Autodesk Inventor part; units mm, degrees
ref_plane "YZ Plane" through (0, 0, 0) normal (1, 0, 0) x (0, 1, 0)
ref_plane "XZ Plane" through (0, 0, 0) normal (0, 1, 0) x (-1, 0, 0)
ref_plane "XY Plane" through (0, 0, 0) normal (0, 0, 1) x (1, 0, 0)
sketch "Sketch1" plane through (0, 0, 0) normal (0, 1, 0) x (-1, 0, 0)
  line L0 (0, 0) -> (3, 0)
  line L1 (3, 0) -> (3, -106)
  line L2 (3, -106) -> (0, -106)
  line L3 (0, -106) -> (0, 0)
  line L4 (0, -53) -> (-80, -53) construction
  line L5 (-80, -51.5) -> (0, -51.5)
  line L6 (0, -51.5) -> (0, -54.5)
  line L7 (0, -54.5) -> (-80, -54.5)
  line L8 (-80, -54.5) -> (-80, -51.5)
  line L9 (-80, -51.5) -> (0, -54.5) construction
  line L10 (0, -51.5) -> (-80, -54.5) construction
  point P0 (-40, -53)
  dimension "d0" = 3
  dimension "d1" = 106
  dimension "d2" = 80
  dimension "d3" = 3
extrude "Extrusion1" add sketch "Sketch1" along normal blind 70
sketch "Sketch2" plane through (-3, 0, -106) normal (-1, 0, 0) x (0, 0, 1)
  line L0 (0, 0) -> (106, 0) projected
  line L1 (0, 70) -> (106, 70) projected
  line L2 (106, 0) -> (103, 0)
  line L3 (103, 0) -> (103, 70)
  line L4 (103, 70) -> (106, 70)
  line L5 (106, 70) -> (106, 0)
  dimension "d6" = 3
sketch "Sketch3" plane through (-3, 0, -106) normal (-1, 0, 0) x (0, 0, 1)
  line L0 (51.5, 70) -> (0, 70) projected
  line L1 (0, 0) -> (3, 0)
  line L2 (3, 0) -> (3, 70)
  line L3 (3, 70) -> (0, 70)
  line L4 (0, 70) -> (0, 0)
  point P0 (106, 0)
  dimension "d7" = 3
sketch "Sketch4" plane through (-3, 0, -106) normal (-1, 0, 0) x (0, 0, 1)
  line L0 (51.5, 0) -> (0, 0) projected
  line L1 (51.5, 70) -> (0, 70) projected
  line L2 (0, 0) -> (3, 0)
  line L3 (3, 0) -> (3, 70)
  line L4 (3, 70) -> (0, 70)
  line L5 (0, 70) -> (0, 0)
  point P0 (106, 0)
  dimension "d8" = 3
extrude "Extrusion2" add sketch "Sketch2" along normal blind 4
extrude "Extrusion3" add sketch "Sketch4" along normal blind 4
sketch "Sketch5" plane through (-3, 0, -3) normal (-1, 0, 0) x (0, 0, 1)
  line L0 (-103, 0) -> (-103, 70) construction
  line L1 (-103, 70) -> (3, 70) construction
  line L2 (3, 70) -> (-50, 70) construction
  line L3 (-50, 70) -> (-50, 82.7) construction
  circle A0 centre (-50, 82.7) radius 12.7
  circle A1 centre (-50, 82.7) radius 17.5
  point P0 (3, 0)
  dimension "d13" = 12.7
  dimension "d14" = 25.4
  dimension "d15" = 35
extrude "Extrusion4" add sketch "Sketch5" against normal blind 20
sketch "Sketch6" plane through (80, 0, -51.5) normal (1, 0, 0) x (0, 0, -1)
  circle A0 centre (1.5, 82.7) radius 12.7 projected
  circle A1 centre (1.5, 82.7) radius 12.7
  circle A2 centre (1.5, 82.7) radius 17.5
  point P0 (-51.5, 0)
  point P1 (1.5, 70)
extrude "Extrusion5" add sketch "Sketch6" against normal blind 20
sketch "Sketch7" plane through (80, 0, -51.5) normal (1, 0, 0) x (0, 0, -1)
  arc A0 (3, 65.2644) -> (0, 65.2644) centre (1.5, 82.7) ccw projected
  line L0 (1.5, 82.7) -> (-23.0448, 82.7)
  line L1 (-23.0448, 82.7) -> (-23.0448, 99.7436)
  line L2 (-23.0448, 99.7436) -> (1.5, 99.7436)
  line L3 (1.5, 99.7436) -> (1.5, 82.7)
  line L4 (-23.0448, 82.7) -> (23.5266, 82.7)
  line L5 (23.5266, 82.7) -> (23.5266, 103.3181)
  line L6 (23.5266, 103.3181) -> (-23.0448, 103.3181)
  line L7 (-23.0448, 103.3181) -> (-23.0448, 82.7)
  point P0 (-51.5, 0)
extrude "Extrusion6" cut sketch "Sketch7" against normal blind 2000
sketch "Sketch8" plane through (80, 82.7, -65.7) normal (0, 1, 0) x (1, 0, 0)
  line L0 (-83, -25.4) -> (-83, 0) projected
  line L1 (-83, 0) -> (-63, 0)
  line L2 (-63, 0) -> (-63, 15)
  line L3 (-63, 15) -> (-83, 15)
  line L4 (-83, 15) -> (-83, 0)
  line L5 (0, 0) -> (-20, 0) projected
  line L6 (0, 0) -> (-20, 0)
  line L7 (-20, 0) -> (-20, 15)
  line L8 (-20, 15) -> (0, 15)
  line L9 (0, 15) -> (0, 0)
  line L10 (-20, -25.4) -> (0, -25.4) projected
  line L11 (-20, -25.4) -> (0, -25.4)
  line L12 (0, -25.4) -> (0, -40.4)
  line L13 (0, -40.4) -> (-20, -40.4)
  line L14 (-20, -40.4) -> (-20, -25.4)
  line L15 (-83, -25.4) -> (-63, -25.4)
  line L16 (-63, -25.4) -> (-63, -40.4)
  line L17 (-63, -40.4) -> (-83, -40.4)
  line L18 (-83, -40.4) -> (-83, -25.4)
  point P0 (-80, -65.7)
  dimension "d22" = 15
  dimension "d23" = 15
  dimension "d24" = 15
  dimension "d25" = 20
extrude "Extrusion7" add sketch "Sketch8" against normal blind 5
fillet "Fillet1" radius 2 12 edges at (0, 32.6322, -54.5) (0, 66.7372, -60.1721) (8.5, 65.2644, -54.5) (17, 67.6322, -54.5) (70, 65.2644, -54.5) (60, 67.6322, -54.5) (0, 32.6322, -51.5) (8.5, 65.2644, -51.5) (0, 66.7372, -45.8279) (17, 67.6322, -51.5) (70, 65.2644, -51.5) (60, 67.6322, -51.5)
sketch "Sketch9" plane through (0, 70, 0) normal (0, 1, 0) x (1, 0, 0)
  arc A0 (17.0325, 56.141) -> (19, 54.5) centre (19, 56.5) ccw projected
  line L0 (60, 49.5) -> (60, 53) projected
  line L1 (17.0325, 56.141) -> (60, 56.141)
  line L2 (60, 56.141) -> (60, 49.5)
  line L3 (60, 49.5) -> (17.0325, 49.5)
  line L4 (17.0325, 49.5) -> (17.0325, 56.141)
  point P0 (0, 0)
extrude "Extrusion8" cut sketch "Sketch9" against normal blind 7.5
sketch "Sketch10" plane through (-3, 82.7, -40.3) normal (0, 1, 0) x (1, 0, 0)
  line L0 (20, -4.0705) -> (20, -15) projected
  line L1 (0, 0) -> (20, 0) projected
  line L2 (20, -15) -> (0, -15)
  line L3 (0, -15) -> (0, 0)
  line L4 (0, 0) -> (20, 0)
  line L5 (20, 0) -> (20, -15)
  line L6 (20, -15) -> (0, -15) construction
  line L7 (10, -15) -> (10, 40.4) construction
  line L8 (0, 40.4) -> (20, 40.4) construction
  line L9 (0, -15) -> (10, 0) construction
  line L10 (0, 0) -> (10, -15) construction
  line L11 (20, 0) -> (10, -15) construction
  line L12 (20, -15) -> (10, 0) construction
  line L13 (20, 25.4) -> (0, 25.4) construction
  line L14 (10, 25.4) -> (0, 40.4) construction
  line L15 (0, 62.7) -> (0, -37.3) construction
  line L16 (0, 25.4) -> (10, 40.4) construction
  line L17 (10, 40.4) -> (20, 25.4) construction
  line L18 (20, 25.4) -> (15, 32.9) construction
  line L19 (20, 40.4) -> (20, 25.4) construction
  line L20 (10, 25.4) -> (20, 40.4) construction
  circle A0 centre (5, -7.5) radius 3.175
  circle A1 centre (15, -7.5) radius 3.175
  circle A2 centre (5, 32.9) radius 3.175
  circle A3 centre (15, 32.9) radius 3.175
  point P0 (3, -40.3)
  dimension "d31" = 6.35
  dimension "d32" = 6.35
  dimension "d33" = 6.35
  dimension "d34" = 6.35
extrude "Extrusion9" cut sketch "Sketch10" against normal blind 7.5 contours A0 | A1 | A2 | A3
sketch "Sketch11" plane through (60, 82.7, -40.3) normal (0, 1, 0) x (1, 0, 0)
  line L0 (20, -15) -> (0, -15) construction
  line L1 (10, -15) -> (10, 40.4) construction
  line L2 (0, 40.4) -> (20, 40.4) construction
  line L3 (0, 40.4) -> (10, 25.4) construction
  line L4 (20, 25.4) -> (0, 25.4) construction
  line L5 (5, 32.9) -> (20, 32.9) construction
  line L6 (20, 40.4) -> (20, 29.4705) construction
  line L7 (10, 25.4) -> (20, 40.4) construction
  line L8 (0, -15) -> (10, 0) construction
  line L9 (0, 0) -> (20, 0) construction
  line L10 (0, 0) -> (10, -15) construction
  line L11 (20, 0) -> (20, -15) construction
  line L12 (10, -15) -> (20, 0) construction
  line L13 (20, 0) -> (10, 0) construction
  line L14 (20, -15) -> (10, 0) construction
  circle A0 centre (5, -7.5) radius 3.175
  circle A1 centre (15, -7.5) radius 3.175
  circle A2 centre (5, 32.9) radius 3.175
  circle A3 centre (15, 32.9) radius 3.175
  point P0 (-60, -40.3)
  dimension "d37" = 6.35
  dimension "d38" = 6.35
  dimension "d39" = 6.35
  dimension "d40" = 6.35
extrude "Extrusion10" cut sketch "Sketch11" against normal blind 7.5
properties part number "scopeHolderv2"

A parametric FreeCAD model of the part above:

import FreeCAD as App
import Part
import Sketcher
Q = App.Units.Quantity


def edges_at(feature, points):
    """Names of the edges that pass closest to the given points."""
    edges = feature.Shape.Edges
    near = lambda p: min(range(len(edges)), key=lambda i: edges[i].distToShape(Part.Vertex(*p))[0])
    return sorted({f"Edge{near(p) + 1}" for p in points})


def add_polygon(sketch, points):
    """Adds a closed chain of lines whose ends are joined by coincident constraints."""
    first, n = sketch.GeometryCount, len(points)
    for a, b in zip(points, points[1:] + points[:1]):
        sketch.addGeometry(Part.LineSegment(App.Vector(*a, 0), App.Vector(*b, 0)), False)
    for i in range(n):
        sketch.addConstraint(Sketcher.Constraint("Coincident", first + i, 2, first + (i + 1) % n, 1))

doc = App.newDocument("Part")
body = doc.addObject("PartDesign::Body", "Body")

# Sketch on XZ plane
sketch1 = body.newObject("Sketcher::SketchObject", "Sketch")
sketch1.AttachmentSupport = (doc.getObject("XZ_Plane"), [""])
sketch1.MapMode = "FlatFace"
add_polygon(sketch1, [(-3, 0), (0, 0), (0, -51.5), (80, -51.5), (80, -54.5), (0, -54.5), (0, -106), (-3, -106)])  # lines 0-7
sketch1.addConstraint([
    Sketcher.Constraint("Horizontal", 0),
    Sketcher.Constraint("Vertical", 1),
    Sketcher.Constraint("Horizontal", 2),
    Sketcher.Constraint("Vertical", 3),
    Sketcher.Constraint("Horizontal", 4),
    Sketcher.Constraint("Vertical", 5),
    Sketcher.Constraint("Horizontal", 6),
    Sketcher.Constraint("Vertical", 7),
    Sketcher.Constraint("Coincident", 0, 2, -1, 1),
    Sketcher.Constraint("PointOnObject", 4, 2, -2),
    Sketcher.Constraint("Equal", 6, 3),
    Sketcher.Constraint("Equal", 1, 5),
    Sketcher.Constraint("DistanceX", 0, 1, 0, 2, Q("3 mm")),
    Sketcher.Constraint("DistanceX", 2, 1, 2, 2, Q("80 mm")),
    Sketcher.Constraint("DistanceY", 7, 1, 7, 2, Q("106 mm")),
])
pad1 = body.newObject("PartDesign::Pad", "Pad")
pad1.Profile = sketch1
pad1.Length = 70
pad1.Reversed = True

# Sketch on YZ plane
sketch2 = body.newObject("Sketcher::SketchObject", "Sketch001")
sketch2.AttachmentSupport = (doc.getObject("YZ_Plane"), [""])
sketch2.MapMode = "FlatFace"
sketch2.AttachmentOffset = App.Placement(App.Vector(0, 0, -3), App.Rotation())
add_polygon(sketch2, [(70, -3), (0, -3), (0, 0), (70, 0)])  # lines 0-3
sketch2.addConstraint([
    Sketcher.Constraint("Horizontal", 0),
    Sketcher.Constraint("Vertical", 1),
    Sketcher.Constraint("Horizontal", 2),
    Sketcher.Constraint("Vertical", 3),
    Sketcher.Constraint("Coincident", 1, 2, -1, 1),
    Sketcher.Constraint("DistanceY", 1, 1, 1, 2, Q("3 mm")),
    Sketcher.Constraint("DistanceX", 0, 2, 0, 1, Q("70 mm")),
])
pad2 = body.newObject("PartDesign::Pad", "Pad001")
pad2.Profile = sketch2
pad2.Length = 4
pad2.Reversed = True

# Sketch on YZ plane
sketch3 = body.newObject("Sketcher::SketchObject", "Sketch002")
sketch3.AttachmentSupport = (doc.getObject("YZ_Plane"), [""])
sketch3.MapMode = "FlatFace"
sketch3.AttachmentOffset = App.Placement(App.Vector(0, 0, -3), App.Rotation())
add_polygon(sketch3, [(0, -106), (0, -103), (70, -103), (70, -106)])  # lines 0-3
sketch3.addConstraint([
    Sketcher.Constraint("Vertical", 0),
    Sketcher.Constraint("Horizontal", 1),
    Sketcher.Constraint("Vertical", 2),
    Sketcher.Constraint("Horizontal", 3),
    Sketcher.Constraint("PointOnObject", 0, 2, -2),
    Sketcher.Constraint("DistanceY", 0, 1, 0, 2, Q("3 mm")),
    Sketcher.Constraint("DistanceX", 1, 1, 1, 2, Q("70 mm")),
    Sketcher.Constraint("DistanceY", 0, 2, -1, 1, Q("103 mm")),
])
pad3 = body.newObject("PartDesign::Pad", "Pad002")
pad3.Profile = sketch3
pad3.Length = 4
pad3.Reversed = True

# Sketch on YZ plane
sketch4 = body.newObject("Sketcher::SketchObject", "Sketch003")
sketch4.AttachmentSupport = (doc.getObject("YZ_Plane"), [""])
sketch4.MapMode = "FlatFace"
sketch4.AttachmentOffset = App.Placement(App.Vector(0, 0, -3), App.Rotation())
sketch4.addGeometry([
    Part.Circle(App.Vector(83, -53, 0), App.Vector(0, 0, 1), 18),
    Part.Circle(App.Vector(83, -53, 0), App.Vector(0, 0, 1), 13),
], False)
sketch4.addConstraint([
    Sketcher.Constraint("Coincident", 1, 3, 0, 3),
    Sketcher.Constraint("Diameter", 0, Q("35 mm")),
    Sketcher.Constraint("Diameter", 1, Q("25.4 mm")),
    Sketcher.Constraint("DistanceY", 0, 3, -1, 1, Q("53 mm")),
    Sketcher.Constraint("DistanceX", -1, 1, 0, 3, Q("82.7 mm")),
])
pad4 = body.newObject("PartDesign::Pad", "Pad003")
pad4.Profile = sketch4
pad4.Length = 20

# Sketch on YZ plane
sketch5 = body.newObject("Sketcher::SketchObject", "Sketch004")
sketch5.AttachmentSupport = (doc.getObject("YZ_Plane"), [""])
sketch5.MapMode = "FlatFace"
sketch5.AttachmentOffset = App.Placement(App.Vector(0, 0, 80), App.Rotation())
sketch5.addGeometry([
    Part.Circle(App.Vector(83, -53, 0), App.Vector(0, 0, 1), 18),
    Part.Circle(App.Vector(83, -53, 0), App.Vector(0, 0, 1), 13),
], False)
sketch5.addConstraint([
    Sketcher.Constraint("Coincident", 1, 3, 0, 3),
    Sketcher.Constraint("Diameter", 0, Q("35 mm")),
    Sketcher.Constraint("Diameter", 1, Q("25.4 mm")),
    Sketcher.Constraint("DistanceY", 0, 3, -1, 1, Q("53 mm")),
    Sketcher.Constraint("DistanceX", -1, 1, 0, 3, Q("82.7 mm")),
])
pad5 = body.newObject("PartDesign::Pad", "Pad004")
pad5.Profile = sketch5
pad5.Length = 20
pad5.Reversed = True

# Sketch on YZ plane
sketch6 = body.newObject("Sketcher::SketchObject", "Sketch005")
sketch6.AttachmentSupport = (doc.getObject("YZ_Plane"), [""])
sketch6.MapMode = "FlatFace"
sketch6.AttachmentOffset = App.Placement(App.Vector(0, 0, 80), App.Rotation())
add_polygon(sketch6, [(83, -75), (103, -75), (103, -28), (83, -28)])  # lines 0-3
sketch6.addConstraint([
    Sketcher.Constraint("Horizontal", 0),
    Sketcher.Constraint("Vertical", 1),
    Sketcher.Constraint("Horizontal", 2),
    Sketcher.Constraint("Vertical", 3),
    Sketcher.Constraint("DistanceX", -1, 1, 2, 2, Q("82.7 mm")),
    Sketcher.Constraint("DistanceX", 0, 1, 0, 2, Q("20.618 mm")),
    Sketcher.Constraint("DistanceY", 1, 1, 1, 2, Q("46.5714 mm")),
    Sketcher.Constraint("DistanceY", 0, 2, -1, 1, Q("75.0266 mm")),
])
pocket1 = body.newObject("PartDesign::Pocket", "Pocket")
pocket1.Profile = sketch6
pocket1.Length = 2000

# Sketch on XZ plane
sketch7 = body.newObject("Sketcher::SketchObject", "Sketch006")
sketch7.AttachmentSupport = (doc.getObject("XZ_Plane"), [""])
sketch7.MapMode = "FlatFace"
sketch7.AttachmentOffset = App.Placement(App.Vector(0, 0, -82.7), App.Rotation())
add_polygon(sketch7, [(-3, -81), (-3, -66), (17, -66), (17, -81)])  # lines 0-3
add_polygon(sketch7, [(17, -40), (-3, -40), (-3, -25), (17, -25)])  # lines 4-7
add_polygon(sketch7, [(60, -66), (80, -66), (80, -81), (60, -81)])  # lines 8-11
add_polygon(sketch7, [(80, -40), (60, -40), (60, -25), (80, -25)])  # lines 12-15
sketch7.addConstraint([
    Sketcher.Constraint("Vertical", 0),
    Sketcher.Constraint("Horizontal", 1),
    Sketcher.Constraint("Vertical", 2),
    Sketcher.Constraint("Horizontal", 3),
    Sketcher.Constraint("Horizontal", 4),
    Sketcher.Constraint("Vertical", 5),
    Sketcher.Constraint("Horizontal", 6),
    Sketcher.Constraint("Vertical", 7),
    Sketcher.Constraint("Horizontal", 8),
    Sketcher.Constraint("Vertical", 9),
    Sketcher.Constraint("Horizontal", 10),
    Sketcher.Constraint("Vertical", 11),
    Sketcher.Constraint("Horizontal", 12),
    Sketcher.Constraint("Vertical", 13),
    Sketcher.Constraint("Horizontal", 14),
    Sketcher.Constraint("Vertical", 15),
    Sketcher.Constraint("Horizontal", 1, 2, 8, 2),
    Sketcher.Constraint("Horizontal", 3, 2, 9, 2),
    Sketcher.Constraint("Horizontal", 7, 2, 12, 2),
    Sketcher.Constraint("Horizontal", 6, 2, 13, 2),
    Sketcher.Constraint("Vertical", 3, 2, 4, 2),
    Sketcher.Constraint("Vertical", 2, 2, 6, 2),
    Sketcher.Constraint("Vertical", 11, 2, 12, 2),
    Sketcher.Constraint("Vertical", 9, 2, 14, 2),
    Sketcher.Constraint("Equal", 6, 8),
    Sketcher.Constraint("Equal", 2, 5),
    Sketcher.Constraint("DistanceX", 1, 1, 1, 2, Q("20 mm")),
    Sketcher.Constraint("DistanceY", 0, 1, 0, 2, Q("15 mm")),
    Sketcher.Constraint("DistanceX", 0, 2, -1, 1, Q("3 mm")),
    Sketcher.Constraint("DistanceX", -1, 1, 8, 2, Q("80 mm")),
    Sketcher.Constraint("DistanceY", 0, 2, -1, 1, Q("65.7 mm")),
    Sketcher.Constraint("DistanceY", 4, 2, -1, 1, Q("40.3 mm")),
])
pad6 = body.newObject("PartDesign::Pad", "Pad005")
pad6.Profile = sketch7
pad6.Length = 5
doc.recompute()

fillet = body.newObject("PartDesign::Fillet", "Fillet")
fillet.Base = (pad6, edges_at(pad6, [
    (0, 32.632, -54.5),
    (0, 66.737, -60.172),
    (8.5, 65.264, -54.5),
    (17, 67.632, -54.5),
    (70, 65.264, -54.5),
    (60, 67.632, -54.5),
    (0, 32.632, -51.5),
    (8.5, 65.264, -51.5),
    (0, 66.737, -45.828),
    (17, 67.632, -51.5),
    (70, 65.264, -51.5),
    (60, 67.632, -51.5),
]))
fillet.Radius = 2

# Sketch on XZ plane
sketch8 = body.newObject("Sketcher::SketchObject", "Sketch007")
sketch8.AttachmentSupport = (doc.getObject("XZ_Plane"), [""])
sketch8.MapMode = "FlatFace"
sketch8.AttachmentOffset = App.Placement(App.Vector(0, 0, -70), App.Rotation())
add_polygon(sketch8, [(17, -50), (60, -50), (60, -56), (17, -56)])  # lines 0-3
sketch8.addConstraint([
    Sketcher.Constraint("Horizontal", 0),
    Sketcher.Constraint("Vertical", 1),
    Sketcher.Constraint("Horizontal", 2),
    Sketcher.Constraint("Vertical", 3),
    Sketcher.Constraint("DistanceX", -1, 1, 0, 2, Q("60 mm")),
    Sketcher.Constraint("DistanceY", 0, 2, -1, 1, Q("49.5 mm")),
    Sketcher.Constraint("DistanceY", 1, 2, 1, 1, Q("6.641 mm")),
    Sketcher.Constraint("DistanceX", 0, 1, 0, 2, Q("42.9675 mm")),
])
pocket2 = body.newObject("PartDesign::Pocket", "Pocket001")
pocket2.Profile = sketch8
pocket2.Length = 7.5
pocket2.Reversed = True

# Sketch on XZ plane
sketch9 = body.newObject("Sketcher::SketchObject", "Sketch008")
sketch9.AttachmentSupport = (doc.getObject("XZ_Plane"), [""])
sketch9.MapMode = "FlatFace"
sketch9.AttachmentOffset = App.Placement(App.Vector(0, 0, -82.7), App.Rotation())
sketch9.addGeometry([
    Part.Circle(App.Vector(2, -32.8, 0), App.Vector(0, 0, 1), 3.2),
    Part.Circle(App.Vector(12, -32.8, 0), App.Vector(0, 0, 1), 3.2),
    Part.Circle(App.Vector(2, -73.2, 0), App.Vector(0, 0, 1), 3.2),
    Part.Circle(App.Vector(12, -73.2, 0), App.Vector(0, 0, 1), 3.2),
], False)
sketch9.addConstraint([
    Sketcher.Constraint("Equal", 0, 1),
    Sketcher.Constraint("Equal", 1, 2),
    Sketcher.Constraint("Equal", 2, 3),
    Sketcher.Constraint("Horizontal", 0, 3, 1, 3),
    Sketcher.Constraint("Horizontal", 2, 3, 3, 3),
    Sketcher.Constraint("Vertical", 0, 3, 2, 3),
    Sketcher.Constraint("Vertical", 1, 3, 3, 3),
    Sketcher.Constraint("Diameter", 0, Q("6.35 mm")),
    Sketcher.Constraint("DistanceX", -1, 1, 0, 3, Q("2 mm")),
    Sketcher.Constraint("DistanceX", -1, 1, 1, 3, Q("12 mm")),
    Sketcher.Constraint("DistanceY", 0, 3, -1, 1, Q("32.8 mm")),
    Sketcher.Constraint("DistanceY", 2, 3, -1, 1, Q("73.2 mm")),
])
pocket3 = body.newObject("PartDesign::Pocket", "Pocket002")
pocket3.Profile = sketch9
pocket3.Length = 7.5
pocket3.Reversed = True

# Sketch on XZ plane
sketch10 = body.newObject("Sketcher::SketchObject", "Sketch009")
sketch10.AttachmentSupport = (doc.getObject("XZ_Plane"), [""])
sketch10.MapMode = "FlatFace"
sketch10.AttachmentOffset = App.Placement(App.Vector(0, 0, -82.7), App.Rotation())
sketch10.addGeometry([
    Part.Circle(App.Vector(65, -32.8, 0), App.Vector(0, 0, 1), 3.2),
    Part.Circle(App.Vector(75, -32.8, 0), App.Vector(0, 0, 1), 3.2),
    Part.Circle(App.Vector(65, -73.2, 0), App.Vector(0, 0, 1), 3.2),
    Part.Circle(App.Vector(75, -73.2, 0), App.Vector(0, 0, 1), 3.2),
], False)
sketch10.addConstraint([
    Sketcher.Constraint("Equal", 0, 1),
    Sketcher.Constraint("Equal", 1, 2),
    Sketcher.Constraint("Equal", 2, 3),
    Sketcher.Constraint("Horizontal", 0, 3, 1, 3),
    Sketcher.Constraint("Horizontal", 2, 3, 3, 3),
    Sketcher.Constraint("Vertical", 0, 3, 2, 3),
    Sketcher.Constraint("Vertical", 1, 3, 3, 3),
    Sketcher.Constraint("Diameter", 0, Q("6.35 mm")),
    Sketcher.Constraint("DistanceX", -1, 1, 0, 3, Q("65 mm")),
    Sketcher.Constraint("DistanceX", -1, 1, 1, 3, Q("75 mm")),
    Sketcher.Constraint("DistanceY", 0, 3, -1, 1, Q("32.8 mm")),
    Sketcher.Constraint("DistanceY", 2, 3, -1, 1, Q("73.2 mm")),
])
pocket4 = body.newObject("PartDesign::Pocket", "Pocket003")
pocket4.Profile = sketch10
pocket4.Length = 7.5
pocket4.Reversed = True

doc.recompute()
